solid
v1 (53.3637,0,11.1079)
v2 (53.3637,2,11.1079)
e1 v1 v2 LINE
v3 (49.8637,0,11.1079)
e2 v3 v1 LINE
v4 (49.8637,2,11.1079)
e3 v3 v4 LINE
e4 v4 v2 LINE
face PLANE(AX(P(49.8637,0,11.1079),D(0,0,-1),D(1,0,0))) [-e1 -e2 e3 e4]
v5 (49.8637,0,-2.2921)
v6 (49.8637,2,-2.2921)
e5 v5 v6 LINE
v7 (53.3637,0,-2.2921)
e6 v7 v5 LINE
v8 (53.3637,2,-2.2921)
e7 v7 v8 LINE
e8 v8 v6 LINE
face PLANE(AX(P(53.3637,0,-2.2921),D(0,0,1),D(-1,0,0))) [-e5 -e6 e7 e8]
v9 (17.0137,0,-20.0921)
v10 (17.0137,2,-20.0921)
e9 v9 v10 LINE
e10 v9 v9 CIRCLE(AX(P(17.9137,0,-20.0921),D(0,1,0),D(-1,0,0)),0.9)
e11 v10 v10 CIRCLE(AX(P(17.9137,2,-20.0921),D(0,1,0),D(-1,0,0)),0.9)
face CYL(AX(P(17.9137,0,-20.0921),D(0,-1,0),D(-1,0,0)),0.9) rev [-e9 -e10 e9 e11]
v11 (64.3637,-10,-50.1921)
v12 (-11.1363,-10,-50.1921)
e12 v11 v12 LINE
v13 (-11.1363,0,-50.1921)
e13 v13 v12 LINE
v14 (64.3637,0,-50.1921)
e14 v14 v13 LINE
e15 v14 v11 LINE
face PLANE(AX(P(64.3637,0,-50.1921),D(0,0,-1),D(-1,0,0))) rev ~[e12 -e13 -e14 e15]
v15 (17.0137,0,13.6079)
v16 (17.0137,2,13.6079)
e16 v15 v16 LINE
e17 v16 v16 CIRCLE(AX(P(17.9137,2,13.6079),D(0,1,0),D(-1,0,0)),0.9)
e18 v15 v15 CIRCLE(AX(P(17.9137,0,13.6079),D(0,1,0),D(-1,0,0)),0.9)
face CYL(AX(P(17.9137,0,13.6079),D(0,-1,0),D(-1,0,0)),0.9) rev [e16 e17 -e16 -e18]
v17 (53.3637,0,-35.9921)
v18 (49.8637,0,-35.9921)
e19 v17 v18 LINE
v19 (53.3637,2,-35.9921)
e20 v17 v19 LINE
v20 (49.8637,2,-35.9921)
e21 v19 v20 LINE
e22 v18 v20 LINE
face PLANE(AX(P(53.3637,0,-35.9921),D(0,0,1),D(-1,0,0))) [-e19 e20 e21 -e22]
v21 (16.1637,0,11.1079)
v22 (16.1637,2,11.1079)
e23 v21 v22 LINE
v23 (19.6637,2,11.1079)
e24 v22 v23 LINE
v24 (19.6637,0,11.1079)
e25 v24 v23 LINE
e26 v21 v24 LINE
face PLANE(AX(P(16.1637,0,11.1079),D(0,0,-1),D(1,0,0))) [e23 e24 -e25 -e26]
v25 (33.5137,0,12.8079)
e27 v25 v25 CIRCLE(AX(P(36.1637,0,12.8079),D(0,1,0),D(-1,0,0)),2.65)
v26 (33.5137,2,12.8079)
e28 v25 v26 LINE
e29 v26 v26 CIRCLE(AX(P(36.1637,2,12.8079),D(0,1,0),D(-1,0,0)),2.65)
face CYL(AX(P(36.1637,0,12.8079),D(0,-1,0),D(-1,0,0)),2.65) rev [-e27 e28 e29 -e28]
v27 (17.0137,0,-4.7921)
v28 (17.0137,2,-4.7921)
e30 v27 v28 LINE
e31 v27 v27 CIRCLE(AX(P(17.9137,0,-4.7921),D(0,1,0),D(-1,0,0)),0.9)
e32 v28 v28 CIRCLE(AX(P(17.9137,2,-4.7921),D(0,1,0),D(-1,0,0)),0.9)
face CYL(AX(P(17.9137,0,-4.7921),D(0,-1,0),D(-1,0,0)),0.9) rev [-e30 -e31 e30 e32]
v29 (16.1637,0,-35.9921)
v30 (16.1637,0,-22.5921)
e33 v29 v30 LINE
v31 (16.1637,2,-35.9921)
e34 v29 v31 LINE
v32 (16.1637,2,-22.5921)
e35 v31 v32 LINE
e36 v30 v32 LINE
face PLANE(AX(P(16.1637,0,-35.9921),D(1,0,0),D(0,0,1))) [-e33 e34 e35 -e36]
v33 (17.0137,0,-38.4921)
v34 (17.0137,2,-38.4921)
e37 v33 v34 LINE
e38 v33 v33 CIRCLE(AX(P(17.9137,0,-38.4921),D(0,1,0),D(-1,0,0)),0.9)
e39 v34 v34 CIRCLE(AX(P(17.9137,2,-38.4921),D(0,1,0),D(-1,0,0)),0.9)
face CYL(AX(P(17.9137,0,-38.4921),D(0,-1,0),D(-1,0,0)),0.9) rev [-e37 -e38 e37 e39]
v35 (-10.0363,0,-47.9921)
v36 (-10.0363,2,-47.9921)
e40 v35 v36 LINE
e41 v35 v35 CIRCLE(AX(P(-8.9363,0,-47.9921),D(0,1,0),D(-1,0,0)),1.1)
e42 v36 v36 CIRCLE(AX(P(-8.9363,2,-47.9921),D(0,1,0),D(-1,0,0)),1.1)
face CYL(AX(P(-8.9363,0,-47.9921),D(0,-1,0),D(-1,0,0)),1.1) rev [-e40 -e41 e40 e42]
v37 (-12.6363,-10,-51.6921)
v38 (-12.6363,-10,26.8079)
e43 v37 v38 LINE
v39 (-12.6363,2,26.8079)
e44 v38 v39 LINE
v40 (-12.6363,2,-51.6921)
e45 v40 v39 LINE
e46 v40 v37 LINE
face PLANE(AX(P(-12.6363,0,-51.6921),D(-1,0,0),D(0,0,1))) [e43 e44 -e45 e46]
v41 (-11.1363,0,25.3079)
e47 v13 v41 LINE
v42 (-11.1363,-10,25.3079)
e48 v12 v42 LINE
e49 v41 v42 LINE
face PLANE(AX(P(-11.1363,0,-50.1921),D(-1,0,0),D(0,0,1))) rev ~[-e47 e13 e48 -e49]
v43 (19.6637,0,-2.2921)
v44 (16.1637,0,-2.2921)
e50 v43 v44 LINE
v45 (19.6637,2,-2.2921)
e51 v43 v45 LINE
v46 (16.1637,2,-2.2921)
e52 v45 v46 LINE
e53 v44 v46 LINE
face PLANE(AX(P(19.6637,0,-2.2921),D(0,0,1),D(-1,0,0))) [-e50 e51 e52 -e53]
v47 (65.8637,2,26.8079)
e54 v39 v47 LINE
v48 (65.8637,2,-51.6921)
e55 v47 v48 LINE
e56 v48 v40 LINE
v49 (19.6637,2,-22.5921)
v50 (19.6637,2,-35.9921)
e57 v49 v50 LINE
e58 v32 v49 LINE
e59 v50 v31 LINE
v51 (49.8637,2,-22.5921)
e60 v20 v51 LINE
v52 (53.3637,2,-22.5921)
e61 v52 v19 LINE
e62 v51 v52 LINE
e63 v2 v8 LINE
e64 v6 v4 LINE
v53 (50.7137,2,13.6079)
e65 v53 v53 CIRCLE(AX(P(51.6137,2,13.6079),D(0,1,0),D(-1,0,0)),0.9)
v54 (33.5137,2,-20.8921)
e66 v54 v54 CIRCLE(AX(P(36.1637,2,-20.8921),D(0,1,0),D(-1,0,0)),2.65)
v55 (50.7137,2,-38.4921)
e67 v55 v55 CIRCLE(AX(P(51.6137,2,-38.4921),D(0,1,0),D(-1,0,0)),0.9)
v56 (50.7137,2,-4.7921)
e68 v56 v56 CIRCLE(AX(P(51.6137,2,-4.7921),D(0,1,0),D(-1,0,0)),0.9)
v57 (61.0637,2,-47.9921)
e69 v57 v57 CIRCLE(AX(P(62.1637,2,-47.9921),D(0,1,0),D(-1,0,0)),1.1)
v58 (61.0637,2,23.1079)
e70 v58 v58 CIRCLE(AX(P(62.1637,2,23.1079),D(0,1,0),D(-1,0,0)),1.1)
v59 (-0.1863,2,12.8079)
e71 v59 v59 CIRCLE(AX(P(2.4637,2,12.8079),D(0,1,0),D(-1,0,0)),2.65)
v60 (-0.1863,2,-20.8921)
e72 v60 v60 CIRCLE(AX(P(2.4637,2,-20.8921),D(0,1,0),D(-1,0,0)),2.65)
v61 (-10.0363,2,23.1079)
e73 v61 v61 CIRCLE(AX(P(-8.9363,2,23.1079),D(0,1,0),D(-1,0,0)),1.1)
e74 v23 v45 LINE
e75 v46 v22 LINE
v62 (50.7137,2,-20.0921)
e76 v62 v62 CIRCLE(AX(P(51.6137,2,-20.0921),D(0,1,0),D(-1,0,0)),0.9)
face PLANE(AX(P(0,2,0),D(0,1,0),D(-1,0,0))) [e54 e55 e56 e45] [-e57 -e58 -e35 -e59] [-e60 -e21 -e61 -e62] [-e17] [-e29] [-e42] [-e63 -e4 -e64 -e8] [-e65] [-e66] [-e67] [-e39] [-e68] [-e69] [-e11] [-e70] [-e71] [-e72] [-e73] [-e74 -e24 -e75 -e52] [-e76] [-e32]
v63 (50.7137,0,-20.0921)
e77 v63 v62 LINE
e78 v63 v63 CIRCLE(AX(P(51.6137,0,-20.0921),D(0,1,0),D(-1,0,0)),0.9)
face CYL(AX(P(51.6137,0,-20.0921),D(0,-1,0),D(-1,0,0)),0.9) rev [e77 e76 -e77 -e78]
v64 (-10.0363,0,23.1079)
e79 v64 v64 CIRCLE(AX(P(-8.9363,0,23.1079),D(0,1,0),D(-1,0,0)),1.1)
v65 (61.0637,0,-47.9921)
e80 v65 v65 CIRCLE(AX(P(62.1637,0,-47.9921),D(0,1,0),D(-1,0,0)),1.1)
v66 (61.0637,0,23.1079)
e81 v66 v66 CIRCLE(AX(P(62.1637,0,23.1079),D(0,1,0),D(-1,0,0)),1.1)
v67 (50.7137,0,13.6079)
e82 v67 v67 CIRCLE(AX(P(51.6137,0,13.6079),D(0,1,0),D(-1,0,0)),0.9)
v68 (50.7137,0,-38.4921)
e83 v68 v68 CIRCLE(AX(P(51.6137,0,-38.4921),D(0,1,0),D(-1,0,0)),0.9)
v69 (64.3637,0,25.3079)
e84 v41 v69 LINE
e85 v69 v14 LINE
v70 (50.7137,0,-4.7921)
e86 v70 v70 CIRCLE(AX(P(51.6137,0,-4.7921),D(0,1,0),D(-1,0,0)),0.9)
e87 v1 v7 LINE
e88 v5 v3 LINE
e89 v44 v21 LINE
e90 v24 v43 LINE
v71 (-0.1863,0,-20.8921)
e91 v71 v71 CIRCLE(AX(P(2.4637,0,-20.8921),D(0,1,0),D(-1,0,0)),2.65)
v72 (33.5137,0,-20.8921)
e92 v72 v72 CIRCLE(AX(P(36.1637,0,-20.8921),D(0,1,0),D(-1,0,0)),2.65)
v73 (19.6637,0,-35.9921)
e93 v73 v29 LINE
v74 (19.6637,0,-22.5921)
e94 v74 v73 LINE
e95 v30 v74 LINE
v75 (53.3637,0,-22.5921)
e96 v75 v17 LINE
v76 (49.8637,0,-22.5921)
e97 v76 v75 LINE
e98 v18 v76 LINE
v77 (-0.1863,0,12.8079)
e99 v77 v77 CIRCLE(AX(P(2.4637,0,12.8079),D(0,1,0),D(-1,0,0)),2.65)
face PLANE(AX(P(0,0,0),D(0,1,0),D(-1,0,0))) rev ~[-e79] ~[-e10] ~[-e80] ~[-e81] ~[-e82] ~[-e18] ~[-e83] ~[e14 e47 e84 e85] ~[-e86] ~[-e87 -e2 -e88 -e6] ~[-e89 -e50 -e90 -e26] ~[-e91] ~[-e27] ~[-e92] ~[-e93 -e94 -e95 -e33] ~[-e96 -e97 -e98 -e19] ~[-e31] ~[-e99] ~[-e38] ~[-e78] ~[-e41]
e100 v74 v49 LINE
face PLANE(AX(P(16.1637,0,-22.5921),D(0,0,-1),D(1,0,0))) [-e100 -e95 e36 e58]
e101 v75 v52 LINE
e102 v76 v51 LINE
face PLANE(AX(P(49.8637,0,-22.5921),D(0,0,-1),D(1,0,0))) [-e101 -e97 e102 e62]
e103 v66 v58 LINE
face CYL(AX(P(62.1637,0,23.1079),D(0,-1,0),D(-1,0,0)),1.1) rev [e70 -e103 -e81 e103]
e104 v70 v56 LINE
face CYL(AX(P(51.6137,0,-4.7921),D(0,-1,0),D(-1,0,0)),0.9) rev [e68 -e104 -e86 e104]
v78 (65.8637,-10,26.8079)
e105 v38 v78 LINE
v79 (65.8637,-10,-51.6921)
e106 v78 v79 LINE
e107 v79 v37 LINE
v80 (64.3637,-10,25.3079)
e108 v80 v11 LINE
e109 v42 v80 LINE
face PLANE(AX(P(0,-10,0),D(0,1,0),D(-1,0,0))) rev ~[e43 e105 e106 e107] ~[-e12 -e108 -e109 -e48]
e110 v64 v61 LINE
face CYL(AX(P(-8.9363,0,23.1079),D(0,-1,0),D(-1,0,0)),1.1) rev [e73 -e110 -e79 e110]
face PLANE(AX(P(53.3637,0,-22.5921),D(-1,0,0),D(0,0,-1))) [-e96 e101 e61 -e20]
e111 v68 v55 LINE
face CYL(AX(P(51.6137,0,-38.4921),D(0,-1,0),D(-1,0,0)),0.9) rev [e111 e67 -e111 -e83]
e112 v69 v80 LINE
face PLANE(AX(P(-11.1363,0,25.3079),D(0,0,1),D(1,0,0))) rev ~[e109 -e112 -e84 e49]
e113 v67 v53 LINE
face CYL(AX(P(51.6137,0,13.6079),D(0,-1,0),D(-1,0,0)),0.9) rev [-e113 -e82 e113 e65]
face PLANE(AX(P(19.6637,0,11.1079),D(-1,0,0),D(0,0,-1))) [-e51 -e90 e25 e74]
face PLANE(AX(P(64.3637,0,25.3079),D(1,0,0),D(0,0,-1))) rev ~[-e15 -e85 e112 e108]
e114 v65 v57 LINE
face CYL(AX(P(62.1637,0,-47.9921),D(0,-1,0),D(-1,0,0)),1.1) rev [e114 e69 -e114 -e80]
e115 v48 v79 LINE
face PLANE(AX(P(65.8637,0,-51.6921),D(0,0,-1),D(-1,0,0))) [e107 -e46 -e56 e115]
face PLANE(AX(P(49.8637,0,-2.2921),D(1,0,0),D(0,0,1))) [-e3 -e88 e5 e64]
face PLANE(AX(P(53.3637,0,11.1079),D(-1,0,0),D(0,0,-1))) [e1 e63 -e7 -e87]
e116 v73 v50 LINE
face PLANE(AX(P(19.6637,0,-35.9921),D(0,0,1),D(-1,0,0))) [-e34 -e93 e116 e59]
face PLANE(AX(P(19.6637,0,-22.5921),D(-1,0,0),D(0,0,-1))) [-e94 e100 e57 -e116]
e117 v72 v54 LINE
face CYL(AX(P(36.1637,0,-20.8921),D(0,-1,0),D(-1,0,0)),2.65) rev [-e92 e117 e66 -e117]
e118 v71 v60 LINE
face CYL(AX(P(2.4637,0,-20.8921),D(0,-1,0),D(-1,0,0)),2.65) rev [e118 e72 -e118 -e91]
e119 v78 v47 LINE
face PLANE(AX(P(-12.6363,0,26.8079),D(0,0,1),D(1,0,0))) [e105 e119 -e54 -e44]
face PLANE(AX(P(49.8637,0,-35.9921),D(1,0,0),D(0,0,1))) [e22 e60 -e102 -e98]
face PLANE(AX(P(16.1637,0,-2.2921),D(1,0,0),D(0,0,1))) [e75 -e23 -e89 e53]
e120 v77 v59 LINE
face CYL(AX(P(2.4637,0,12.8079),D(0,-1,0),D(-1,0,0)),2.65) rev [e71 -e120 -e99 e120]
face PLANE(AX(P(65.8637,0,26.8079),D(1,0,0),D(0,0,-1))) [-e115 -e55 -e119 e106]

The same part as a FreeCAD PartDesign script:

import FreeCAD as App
import Part
import Sketcher

V = App.Vector
Q = App.Units.Quantity


def add_polygon(sketch, points):
    """Adds a closed chain of lines whose ends are joined by coincident constraints."""
    first, n = sketch.GeometryCount, len(points)
    for a, b in zip(points, points[1:] + points[:1]):
        sketch.addGeometry(Part.LineSegment(App.Vector(*a, 0), App.Vector(*b, 0)), False)
    for i in range(n):
        sketch.addConstraint(Sketcher.Constraint("Coincident", first + i, 2, first + (i + 1) % n, 1))

doc = App.newDocument("Part")
body = doc.addObject("PartDesign::Body", "Body")

sketch1 = body.newObject("Sketcher::SketchObject", "Sketch")
sketch1.AttachmentSupport = (doc.getObject("XZ_Plane"), [""])
sketch1.MapMode = "FlatFace"
add_polygon(sketch1, [(-12.6363, -51.6921), (-12.6363, 26.8079), (65.8637, 26.8079), (65.8637, -51.6921)])
add_polygon(sketch1, [(64.3637, 25.3079), (-11.1363, 25.3079), (-11.1363, -50.1921), (64.3637, -50.1921)])
sketch1.addConstraint(Sketcher.Constraint("Vertical", 0))
sketch1.addConstraint(Sketcher.Constraint("Horizontal", 1))
sketch1.addConstraint(Sketcher.Constraint("Vertical", 2))
sketch1.addConstraint(Sketcher.Constraint("Horizontal", 3))
sketch1.addConstraint(Sketcher.Constraint("Horizontal", 4))
sketch1.addConstraint(Sketcher.Constraint("Vertical", 5))
sketch1.addConstraint(Sketcher.Constraint("Horizontal", 6))
sketch1.addConstraint(Sketcher.Constraint("Vertical", 7))
sketch1.addConstraint(Sketcher.Constraint("Equal", 3, 0))
sketch1.addConstraint(Sketcher.Constraint("Equal", 6, 5))
sketch1.addConstraint(Sketcher.Constraint("DistanceX", 4, 2, 4, 1, Q("75.5 mm")))
sketch1.addConstraint(Sketcher.Constraint("DistanceX", 0, 2, 4, 2, Q("1.5 mm")))
sketch1.addConstraint(Sketcher.Constraint("DistanceY", 4, 2, 0, 2, Q("1.5 mm")))
sketch1.addConstraint(Sketcher.Constraint("DistanceY", 3, 2, 5, 2, Q("1.5 mm")))
sketch1.addConstraint(Sketcher.Constraint("DistanceY", -1, 1, 0, 2, Q("26.808 mm")))
sketch1.addConstraint(Sketcher.Constraint("DistanceX", 0, 2, -1, 1, Q("12.6363 mm")))
pad1 = body.newObject("PartDesign::Pad", "Pad")
pad1.Profile = sketch1
pad1.Length = 10

sketch2 = body.newObject("Sketcher::SketchObject", "Sketch001")
sketch2.AttachmentSupport = (doc.getObject("XZ_Plane"), [""])
sketch2.MapMode = "FlatFace"
add_polygon(sketch2, [(-12.6363, -51.6921), (-12.6363, 26.8079), (65.8637, 26.8079), (65.8637, -51.6921)])
sketch2.addGeometry(Part.Circle(V(62.1637, -47.9921, 0), V(0, 0, 1), 1.1), False)
sketch2.addGeometry(Part.Circle(V(51.6137, -38.4921, 0), V(0, 0, 1), 0.9), False)
add_polygon(sketch2, [(53.3637, -22.5921), (49.8637, -22.5921), (49.8637, -35.9921), (53.3637, -35.9921)])
sketch2.addGeometry(Part.Circle(V(51.6137, -20.0921, 0), V(0, 0, 1), 0.9), False)
sketch2.addGeometry(Part.Circle(V(36.1637, -20.8921, 0), V(0, 0, 1), 2.65), False)
sketch2.addGeometry(Part.Circle(V(17.9137, -38.4921, 0), V(0, 0, 1), 0.9), False)
sketch2.addGeometry(Part.Circle(V(-8.9363, -47.9921, 0), V(0, 0, 1), 1.1), False)
add_polygon(sketch2, [(19.6637, -22.5921), (16.1637, -22.5921), (16.1637, -35.9921), (19.6637, -35.9921)])
sketch2.addGeometry(Part.Circle(V(17.9137, -20.0921, 0), V(0, 0, 1), 0.9), False)
sketch2.addGeometry(Part.Circle(V(2.4637, -20.8921, 0), V(0, 0, 1), 2.65), False)
sketch2.addGeometry(Part.Circle(V(51.6137, -4.7921, 0), V(0, 0, 1), 0.9), False)
add_polygon(sketch2, [(53.3637, 11.1079), (49.8637, 11.1079), (49.8637, -2.2921), (53.3637, -2.2921)])
sketch2.addGeometry(Part.Circle(V(51.6137, 13.6079, 0), V(0, 0, 1), 0.9), False)
sketch2.addGeometry(Part.Circle(V(62.1637, 23.1079, 0), V(0, 0, 1), 1.1), False)
sketch2.addGeometry(Part.Circle(V(36.1637, 12.8079, 0), V(0, 0, 1), 2.65), False)
sketch2.addGeometry(Part.Circle(V(17.9137, -4.7921, 0), V(0, 0, 1), 0.9), False)
add_polygon(sketch2, [(19.6637, 11.1079), (16.1637, 11.1079), (16.1637, -2.2921), (19.6637, -2.2921)])
sketch2.addGeometry(Part.Circle(V(17.9137, 13.6079, 0), V(0, 0, 1), 0.9), False)
sketch2.addGeometry(Part.Circle(V(2.4637, 12.8079, 0), V(0, 0, 1), 2.65), False)
sketch2.addGeometry(Part.Circle(V(-8.9363, 23.1079, 0), V(0, 0, 1), 1.1), False)
sketch2.addConstraint(Sketcher.Constraint("Vertical", 0))
sketch2.addConstraint(Sketcher.Constraint("Horizontal", 1))
sketch2.addConstraint(Sketcher.Constraint("Vertical", 2))
sketch2.addConstraint(Sketcher.Constraint("Horizontal", 3))
sketch2.addConstraint(Sketcher.Constraint("Horizontal", 6))
sketch2.addConstraint(Sketcher.Constraint("Vertical", 7))
sketch2.addConstraint(Sketcher.Constraint("Horizontal", 8))
sketch2.addConstraint(Sketcher.Constraint("Vertical", 9))
sketch2.addConstraint(Sketcher.Constraint("Horizontal", 14))
sketch2.addConstraint(Sketcher.Constraint("Vertical", 15))
sketch2.addConstraint(Sketcher.Constraint("Horizontal", 16))
sketch2.addConstraint(Sketcher.Constraint("Vertical", 17))
sketch2.addConstraint(Sketcher.Constraint("Horizontal", 21))
sketch2.addConstraint(Sketcher.Constraint("Vertical", 22))
sketch2.addConstraint(Sketcher.Constraint("Horizontal", 23))
sketch2.addConstraint(Sketcher.Constraint("Vertical", 24))
sketch2.addConstraint(Sketcher.Constraint("Horizontal", 29))
sketch2.addConstraint(Sketcher.Constraint("Vertical", 30))
sketch2.addConstraint(Sketcher.Constraint("Horizontal", 31))
sketch2.addConstraint(Sketcher.Constraint("Vertical", 32))
sketch2.addConstraint(Sketcher.Constraint("Equal", 5, 10))
sketch2.addConstraint(Sketcher.Constraint("Equal", 10, 12))
sketch2.addConstraint(Sketcher.Constraint("Equal", 4, 13))
sketch2.addConstraint(Sketcher.Constraint("Equal", 12, 18))
sketch2.addConstraint(Sketcher.Constraint("Equal", 11, 19))
sketch2.addConstraint(Sketcher.Constraint("Equal", 18, 20))
sketch2.addConstraint(Sketcher.Constraint("Equal", 20, 25))
sketch2.addConstraint(Sketcher.Constraint("Equal", 13, 26))
sketch2.addConstraint(Sketcher.Constraint("Equal", 19, 27))
sketch2.addConstraint(Sketcher.Constraint("Equal", 25, 28))
sketch2.addConstraint(Sketcher.Constraint("Equal", 28, 33))
sketch2.addConstraint(Sketcher.Constraint("Equal", 27, 34))
sketch2.addConstraint(Sketcher.Constraint("Equal", 26, 35))
sketch2.addConstraint(Sketcher.Constraint("Horizontal", 5, 3, 12, 3))
sketch2.addConstraint(Sketcher.Constraint("Horizontal", 4, 3, 13, 3))
sketch2.addConstraint(Sketcher.Constraint("Horizontal", 10, 3, 18, 3))
sketch2.addConstraint(Sketcher.Constraint("Horizontal", 11, 3, 19, 3))
sketch2.addConstraint(Sketcher.Constraint("Horizontal", 20, 3, 28, 3))
sketch2.addConstraint(Sketcher.Constraint("Horizontal", 25, 3, 33, 3))
sketch2.addConstraint(Sketcher.Constraint("Horizontal", 27, 3, 34, 3))
sketch2.addConstraint(Sketcher.Constraint("Horizontal", 26, 3, 35, 3))
sketch2.addConstraint(Sketcher.Constraint("Horizontal", 9, 2, 14, 2))
sketch2.addConstraint(Sketcher.Constraint("Horizontal", 8, 2, 15, 2))
sketch2.addConstraint(Sketcher.Constraint("Horizontal", 24, 2, 29, 2))
sketch2.addConstraint(Sketcher.Constraint("Horizontal", 23, 2, 30, 2))
sketch2.addConstraint(Sketcher.Constraint("Vertical", 5, 3, 10, 3))
sketch2.addConstraint(Sketcher.Constraint("Vertical", 12, 3, 18, 3))
sketch2.addConstraint(Sketcher.Constraint("Vertical", 10, 3, 20, 3))
sketch2.addConstraint(Sketcher.Constraint("Vertical", 20, 3, 25, 3))
sketch2.addConstraint(Sketcher.Constraint("Vertical", 4, 3, 26, 3))
sketch2.addConstraint(Sketcher.Constraint("Vertical", 11, 3, 27, 3))
sketch2.addConstraint(Sketcher.Constraint("Vertical", 18, 3, 28, 3))
sketch2.addConstraint(Sketcher.Constraint("Vertical", 28, 3, 33, 3))
sketch2.addConstraint(Sketcher.Constraint("Vertical", 19, 3, 34, 3))
sketch2.addConstraint(Sketcher.Constraint("Vertical", 13, 3, 35, 3))
sketch2.addConstraint(Sketcher.Constraint("Vertical", 7, 2, 21, 2))
sketch2.addConstraint(Sketcher.Constraint("Vertical", 9, 2, 23, 2))
sketch2.addConstraint(Sketcher.Constraint("Vertical", 15, 2, 29, 2))
sketch2.addConstraint(Sketcher.Constraint("Vertical", 17, 2, 31, 2))
sketch2.addConstraint(Sketcher.Constraint("Equal", 8, 14))
sketch2.addConstraint(Sketcher.Constraint("Equal", 3, 0))
sketch2.addConstraint(Sketcher.Constraint("Equal", 17, 22))
sketch2.addConstraint(Sketcher.Constraint("Diameter", 4, Q("2.2 mm")))
sketch2.addConstraint(Sketcher.Constraint("Diameter", 5, Q("1.8 mm")))
sketch2.addConstraint(Sketcher.Constraint("Diameter", 11, Q("5.3 mm")))
sketch2.addConstraint(Sketcher.Constraint("DistanceX", 6, 2, 6, 1, Q("3.5 mm")))
sketch2.addConstraint(Sketcher.Constraint("DistanceY", 7, 2, 7, 1, Q("13.4 mm")))
sketch2.addConstraint(Sketcher.Constraint("DistanceX", 12, 3, 5, 3, Q("33.7 mm")))
sketch2.addConstraint(Sketcher.Constraint("DistanceX", 19, 3, 11, 3, Q("33.7 mm")))
sketch2.addConstraint(Sketcher.Constraint("DistanceY", 5, 3, 20, 3, Q("33.7 mm")))
sketch2.addConstraint(Sketcher.Constraint("DistanceY", 10, 3, 25, 3, Q("33.7 mm")))
sketch2.addConstraint(Sketcher.Constraint("DistanceY", 11, 3, 27, 3, Q("33.7 mm")))
sketch2.addConstraint(Sketcher.Constraint("DistanceY", 6, 2, 10, 3, Q("2.5 mm")))
sketch2.addConstraint(Sketcher.Constraint("DistanceY", 5, 3, 7, 2, Q("2.5 mm")))
sketch2.addConstraint(Sketcher.Constraint("DistanceY", 21, 2, 25, 3, Q("2.5 mm")))
sketch2.addConstraint(Sketcher.Constraint("DistanceX", 1, 1, 1, 2, Q("78.5 mm")))
sketch2.addConstraint(Sketcher.Constraint("DistanceX", 11, 3, 4, 3, Q("26 mm")))
sketch2.addConstraint(Sketcher.Constraint("DistanceY", 11, 3, 26, 3, Q("44 mm")))
sketch2.addConstraint(Sketcher.Constraint("DistanceY", 34, 3, 0, 2, Q("14 mm")))
sketch2.addConstraint(Sketcher.Constraint("DistanceY", 4, 3, 7, 2, Q("12 mm")))
sketch2.addConstraint(Sketcher.Constraint("DistanceX", 14, 2, 11, 3, Q("20 mm")))
sketch2.addConstraint(Sketcher.Constraint("DistanceY", 21, 2, 26, 3, Q("12 mm")))
sketch2.addConstraint(Sketcher.Constraint("DistanceX", 21, 2, 1, 2, Q("16 mm")))
sketch2.addConstraint(Sketcher.Constraint("DistanceX", 13, 3, 11, 3, Q("45.1 mm")))
sketch2.addConstraint(Sketcher.Constraint("DistanceX", 0, 2, 35, 3, Q("3.7 mm")))
sketch2.addConstraint(Sketcher.Constraint("DistanceX", 5, 3, 4, 3, Q("10.55 mm")))
sketch2.addConstraint(Sketcher.Constraint("DistanceY", 4, 3, -1, 1, Q("47.992 mm")))
sketch2.addConstraint(Sketcher.Constraint("DistanceX", -1, 1, 4, 3, Q("62.1637 mm")))
pad2 = body.newObject("PartDesign::Pad", "Pad001")
pad2.Profile = sketch2
pad2.Length = 2
pad2.Reversed = True

doc.recompute()
